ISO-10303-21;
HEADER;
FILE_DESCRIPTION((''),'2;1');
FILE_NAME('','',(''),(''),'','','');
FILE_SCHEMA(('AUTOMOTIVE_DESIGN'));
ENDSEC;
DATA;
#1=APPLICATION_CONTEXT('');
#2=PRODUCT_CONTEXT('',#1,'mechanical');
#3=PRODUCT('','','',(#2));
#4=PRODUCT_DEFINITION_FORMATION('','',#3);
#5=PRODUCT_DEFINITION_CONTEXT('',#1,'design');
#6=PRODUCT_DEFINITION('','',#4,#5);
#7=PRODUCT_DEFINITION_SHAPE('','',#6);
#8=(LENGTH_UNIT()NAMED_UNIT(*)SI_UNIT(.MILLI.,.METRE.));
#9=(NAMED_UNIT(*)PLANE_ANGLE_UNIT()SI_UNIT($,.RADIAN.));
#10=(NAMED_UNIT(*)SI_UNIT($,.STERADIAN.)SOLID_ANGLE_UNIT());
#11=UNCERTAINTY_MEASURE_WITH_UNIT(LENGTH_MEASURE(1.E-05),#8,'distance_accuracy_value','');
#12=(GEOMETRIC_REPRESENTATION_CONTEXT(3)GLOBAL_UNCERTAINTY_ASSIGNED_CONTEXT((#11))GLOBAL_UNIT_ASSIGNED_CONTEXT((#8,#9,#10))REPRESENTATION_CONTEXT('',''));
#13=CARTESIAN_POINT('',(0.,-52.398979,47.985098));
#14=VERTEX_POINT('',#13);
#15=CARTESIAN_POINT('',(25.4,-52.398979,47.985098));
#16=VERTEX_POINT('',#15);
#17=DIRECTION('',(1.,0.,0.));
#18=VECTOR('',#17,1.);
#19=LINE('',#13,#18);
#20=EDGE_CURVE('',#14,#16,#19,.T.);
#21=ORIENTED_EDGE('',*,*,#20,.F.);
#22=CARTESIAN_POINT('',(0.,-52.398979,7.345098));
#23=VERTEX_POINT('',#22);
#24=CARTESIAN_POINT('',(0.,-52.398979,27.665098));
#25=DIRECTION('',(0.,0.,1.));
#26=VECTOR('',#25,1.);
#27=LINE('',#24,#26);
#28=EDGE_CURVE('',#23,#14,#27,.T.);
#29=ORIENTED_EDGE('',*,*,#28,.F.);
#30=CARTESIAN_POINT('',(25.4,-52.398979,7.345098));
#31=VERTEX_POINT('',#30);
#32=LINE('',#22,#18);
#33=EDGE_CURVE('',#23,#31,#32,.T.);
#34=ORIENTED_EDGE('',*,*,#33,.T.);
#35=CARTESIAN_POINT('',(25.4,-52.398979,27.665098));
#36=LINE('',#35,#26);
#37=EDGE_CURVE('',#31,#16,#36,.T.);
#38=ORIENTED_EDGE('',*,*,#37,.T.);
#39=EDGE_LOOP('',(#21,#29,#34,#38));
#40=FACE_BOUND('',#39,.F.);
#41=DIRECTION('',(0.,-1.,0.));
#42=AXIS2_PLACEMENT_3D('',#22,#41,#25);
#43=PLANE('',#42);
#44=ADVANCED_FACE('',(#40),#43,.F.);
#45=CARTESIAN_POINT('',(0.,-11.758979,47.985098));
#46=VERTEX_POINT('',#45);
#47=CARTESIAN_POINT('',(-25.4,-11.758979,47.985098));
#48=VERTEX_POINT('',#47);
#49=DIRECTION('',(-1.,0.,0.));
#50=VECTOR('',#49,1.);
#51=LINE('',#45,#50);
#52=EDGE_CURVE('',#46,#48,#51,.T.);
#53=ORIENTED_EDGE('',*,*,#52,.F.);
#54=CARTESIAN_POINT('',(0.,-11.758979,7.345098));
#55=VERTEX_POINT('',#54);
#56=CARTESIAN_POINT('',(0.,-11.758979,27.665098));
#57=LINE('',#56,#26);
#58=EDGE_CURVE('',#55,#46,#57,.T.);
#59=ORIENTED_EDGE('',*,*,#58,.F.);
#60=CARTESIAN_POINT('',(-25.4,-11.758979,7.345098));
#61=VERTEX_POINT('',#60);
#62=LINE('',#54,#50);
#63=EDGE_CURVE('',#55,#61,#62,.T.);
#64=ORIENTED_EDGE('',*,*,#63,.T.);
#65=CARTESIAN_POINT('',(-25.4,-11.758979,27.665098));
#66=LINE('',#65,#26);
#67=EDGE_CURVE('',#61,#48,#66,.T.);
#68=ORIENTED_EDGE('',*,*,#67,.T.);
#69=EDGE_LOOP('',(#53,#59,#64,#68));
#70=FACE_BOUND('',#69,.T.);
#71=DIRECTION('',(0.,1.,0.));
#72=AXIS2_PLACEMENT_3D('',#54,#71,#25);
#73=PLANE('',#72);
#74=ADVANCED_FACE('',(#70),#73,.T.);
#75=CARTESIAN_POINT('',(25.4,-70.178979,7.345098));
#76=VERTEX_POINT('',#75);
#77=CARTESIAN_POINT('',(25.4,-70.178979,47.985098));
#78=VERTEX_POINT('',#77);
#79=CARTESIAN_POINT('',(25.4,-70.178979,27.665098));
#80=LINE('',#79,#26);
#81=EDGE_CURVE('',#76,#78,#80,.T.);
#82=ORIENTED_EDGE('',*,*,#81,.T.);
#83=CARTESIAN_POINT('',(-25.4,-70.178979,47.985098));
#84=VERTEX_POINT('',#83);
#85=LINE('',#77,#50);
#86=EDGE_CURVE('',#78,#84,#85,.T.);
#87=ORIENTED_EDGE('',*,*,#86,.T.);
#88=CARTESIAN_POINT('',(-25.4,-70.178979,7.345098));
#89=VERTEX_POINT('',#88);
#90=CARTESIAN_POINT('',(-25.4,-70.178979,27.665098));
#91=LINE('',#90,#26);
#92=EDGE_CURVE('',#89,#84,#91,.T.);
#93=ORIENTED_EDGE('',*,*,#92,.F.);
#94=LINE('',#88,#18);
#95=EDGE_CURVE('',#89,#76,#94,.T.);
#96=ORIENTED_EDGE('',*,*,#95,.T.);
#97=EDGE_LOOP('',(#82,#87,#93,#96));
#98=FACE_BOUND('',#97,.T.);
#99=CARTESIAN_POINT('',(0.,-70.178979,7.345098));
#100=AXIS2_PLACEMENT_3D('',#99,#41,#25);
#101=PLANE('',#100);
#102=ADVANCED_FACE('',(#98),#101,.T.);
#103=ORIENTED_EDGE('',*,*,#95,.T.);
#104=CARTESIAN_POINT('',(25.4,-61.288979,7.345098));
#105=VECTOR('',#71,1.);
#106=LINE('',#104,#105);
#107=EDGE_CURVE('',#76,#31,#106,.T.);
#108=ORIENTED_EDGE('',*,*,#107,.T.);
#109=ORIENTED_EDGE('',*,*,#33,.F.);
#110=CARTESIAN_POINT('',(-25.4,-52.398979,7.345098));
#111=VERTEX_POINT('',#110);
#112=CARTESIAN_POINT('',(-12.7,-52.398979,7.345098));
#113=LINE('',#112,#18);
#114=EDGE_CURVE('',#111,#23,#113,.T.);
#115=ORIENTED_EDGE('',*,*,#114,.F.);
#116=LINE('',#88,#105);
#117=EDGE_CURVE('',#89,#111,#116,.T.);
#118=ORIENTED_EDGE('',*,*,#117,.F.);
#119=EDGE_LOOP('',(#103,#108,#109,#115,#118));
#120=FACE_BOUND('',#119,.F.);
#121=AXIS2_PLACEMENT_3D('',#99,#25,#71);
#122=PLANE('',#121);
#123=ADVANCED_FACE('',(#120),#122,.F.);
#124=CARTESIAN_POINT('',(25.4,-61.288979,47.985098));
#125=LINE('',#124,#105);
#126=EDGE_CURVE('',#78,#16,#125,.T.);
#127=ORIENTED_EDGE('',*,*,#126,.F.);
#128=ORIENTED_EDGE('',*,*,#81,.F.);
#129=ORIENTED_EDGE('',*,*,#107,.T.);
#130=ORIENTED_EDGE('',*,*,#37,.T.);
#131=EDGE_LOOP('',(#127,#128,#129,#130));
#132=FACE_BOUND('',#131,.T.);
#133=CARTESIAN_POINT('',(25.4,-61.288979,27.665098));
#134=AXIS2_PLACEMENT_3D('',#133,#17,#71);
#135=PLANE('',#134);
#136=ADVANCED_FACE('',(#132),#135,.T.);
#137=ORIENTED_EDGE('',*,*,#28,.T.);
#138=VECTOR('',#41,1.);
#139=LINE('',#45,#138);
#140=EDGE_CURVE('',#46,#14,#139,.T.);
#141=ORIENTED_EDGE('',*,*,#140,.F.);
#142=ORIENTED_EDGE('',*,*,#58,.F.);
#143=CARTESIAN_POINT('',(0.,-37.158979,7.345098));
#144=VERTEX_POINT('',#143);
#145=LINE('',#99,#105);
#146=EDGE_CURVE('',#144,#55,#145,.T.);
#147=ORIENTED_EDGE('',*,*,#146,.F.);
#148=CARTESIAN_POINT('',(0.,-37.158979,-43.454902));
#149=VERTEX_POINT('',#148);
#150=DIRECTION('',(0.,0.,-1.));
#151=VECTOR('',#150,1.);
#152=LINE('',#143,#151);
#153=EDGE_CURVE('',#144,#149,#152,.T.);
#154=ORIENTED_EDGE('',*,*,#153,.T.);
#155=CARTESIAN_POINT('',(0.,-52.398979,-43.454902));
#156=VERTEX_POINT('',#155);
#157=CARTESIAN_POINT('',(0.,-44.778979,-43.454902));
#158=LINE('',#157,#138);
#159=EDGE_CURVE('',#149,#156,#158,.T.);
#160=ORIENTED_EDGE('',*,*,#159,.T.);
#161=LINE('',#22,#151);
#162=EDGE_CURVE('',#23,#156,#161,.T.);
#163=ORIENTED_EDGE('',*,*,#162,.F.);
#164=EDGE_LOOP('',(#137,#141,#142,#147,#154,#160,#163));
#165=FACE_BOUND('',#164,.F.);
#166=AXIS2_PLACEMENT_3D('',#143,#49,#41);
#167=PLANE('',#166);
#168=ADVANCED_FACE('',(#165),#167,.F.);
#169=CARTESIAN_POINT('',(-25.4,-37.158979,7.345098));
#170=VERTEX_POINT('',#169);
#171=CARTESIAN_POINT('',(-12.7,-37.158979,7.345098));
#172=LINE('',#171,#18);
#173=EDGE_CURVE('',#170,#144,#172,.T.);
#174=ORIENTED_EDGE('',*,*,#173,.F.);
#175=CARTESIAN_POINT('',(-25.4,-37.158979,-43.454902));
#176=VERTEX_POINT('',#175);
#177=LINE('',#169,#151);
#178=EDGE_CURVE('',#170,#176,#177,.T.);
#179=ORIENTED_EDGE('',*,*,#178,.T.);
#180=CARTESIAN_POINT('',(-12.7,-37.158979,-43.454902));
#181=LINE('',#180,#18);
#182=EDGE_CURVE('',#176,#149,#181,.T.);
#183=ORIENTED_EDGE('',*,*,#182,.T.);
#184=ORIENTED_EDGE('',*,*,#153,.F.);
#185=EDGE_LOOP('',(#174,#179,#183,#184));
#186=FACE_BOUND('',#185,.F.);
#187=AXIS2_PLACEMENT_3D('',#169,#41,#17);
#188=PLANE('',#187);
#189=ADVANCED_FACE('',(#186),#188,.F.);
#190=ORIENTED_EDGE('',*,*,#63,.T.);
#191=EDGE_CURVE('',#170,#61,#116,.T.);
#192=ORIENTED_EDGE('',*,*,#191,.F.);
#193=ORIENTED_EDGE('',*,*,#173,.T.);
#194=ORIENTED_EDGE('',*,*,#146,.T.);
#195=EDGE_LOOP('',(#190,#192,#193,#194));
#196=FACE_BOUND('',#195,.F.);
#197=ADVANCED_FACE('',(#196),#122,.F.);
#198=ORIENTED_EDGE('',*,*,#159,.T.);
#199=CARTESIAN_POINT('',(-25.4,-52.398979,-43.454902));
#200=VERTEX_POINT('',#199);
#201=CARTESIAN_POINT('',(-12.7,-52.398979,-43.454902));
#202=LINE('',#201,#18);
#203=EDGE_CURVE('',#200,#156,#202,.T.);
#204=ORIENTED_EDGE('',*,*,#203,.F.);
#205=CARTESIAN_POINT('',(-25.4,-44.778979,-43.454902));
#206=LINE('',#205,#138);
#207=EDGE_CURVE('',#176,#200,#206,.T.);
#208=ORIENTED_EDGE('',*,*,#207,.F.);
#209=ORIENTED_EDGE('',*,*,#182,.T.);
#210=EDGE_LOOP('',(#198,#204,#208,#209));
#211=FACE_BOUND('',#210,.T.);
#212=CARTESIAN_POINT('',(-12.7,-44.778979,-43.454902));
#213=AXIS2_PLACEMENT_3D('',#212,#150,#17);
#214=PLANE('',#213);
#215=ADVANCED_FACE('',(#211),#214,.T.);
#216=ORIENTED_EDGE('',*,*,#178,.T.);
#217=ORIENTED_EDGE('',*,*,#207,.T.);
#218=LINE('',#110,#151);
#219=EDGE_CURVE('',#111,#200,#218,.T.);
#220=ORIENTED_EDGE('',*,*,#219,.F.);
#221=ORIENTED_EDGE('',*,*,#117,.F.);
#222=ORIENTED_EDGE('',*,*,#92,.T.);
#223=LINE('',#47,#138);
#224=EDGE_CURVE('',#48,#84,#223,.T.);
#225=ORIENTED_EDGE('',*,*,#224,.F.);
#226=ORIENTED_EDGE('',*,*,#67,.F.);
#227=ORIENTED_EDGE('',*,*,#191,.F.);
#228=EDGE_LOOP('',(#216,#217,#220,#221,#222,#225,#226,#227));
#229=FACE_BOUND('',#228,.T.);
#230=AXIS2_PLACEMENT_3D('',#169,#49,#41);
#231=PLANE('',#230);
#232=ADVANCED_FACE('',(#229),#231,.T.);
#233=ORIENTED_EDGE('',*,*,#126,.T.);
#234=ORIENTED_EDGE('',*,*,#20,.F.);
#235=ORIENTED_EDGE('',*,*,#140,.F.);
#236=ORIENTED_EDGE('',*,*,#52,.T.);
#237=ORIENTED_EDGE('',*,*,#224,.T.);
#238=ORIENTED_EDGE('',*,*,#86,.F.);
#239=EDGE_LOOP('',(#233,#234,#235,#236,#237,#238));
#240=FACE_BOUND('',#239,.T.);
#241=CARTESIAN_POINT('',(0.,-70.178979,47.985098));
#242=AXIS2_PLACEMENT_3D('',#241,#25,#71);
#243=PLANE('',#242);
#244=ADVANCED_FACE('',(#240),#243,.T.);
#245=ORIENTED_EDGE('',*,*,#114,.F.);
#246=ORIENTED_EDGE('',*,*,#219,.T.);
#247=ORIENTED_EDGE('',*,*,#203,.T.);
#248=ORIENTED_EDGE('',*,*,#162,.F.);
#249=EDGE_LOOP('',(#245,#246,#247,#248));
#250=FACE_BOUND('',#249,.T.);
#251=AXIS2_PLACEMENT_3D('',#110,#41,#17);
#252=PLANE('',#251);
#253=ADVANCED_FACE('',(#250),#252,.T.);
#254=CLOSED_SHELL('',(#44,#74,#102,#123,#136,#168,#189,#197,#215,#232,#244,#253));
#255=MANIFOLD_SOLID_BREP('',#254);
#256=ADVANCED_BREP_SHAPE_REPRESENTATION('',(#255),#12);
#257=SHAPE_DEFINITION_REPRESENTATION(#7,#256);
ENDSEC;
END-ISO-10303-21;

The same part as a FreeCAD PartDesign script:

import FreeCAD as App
import Part
import Sketcher
Q = App.Units.Quantity


def add_polygon(sketch, points):
    """Adds a closed chain of lines whose ends are joined by coincident constraints."""
    first, n = sketch.GeometryCount, len(points)
    for a, b in zip(points, points[1:] + points[:1]):
        sketch.addGeometry(Part.LineSegment(App.Vector(*a, 0), App.Vector(*b, 0)), False)
    for i in range(n):
        sketch.addConstraint(Sketcher.Constraint("Coincident", first + i, 2, first + (i + 1) % n, 1))

doc = App.newDocument("Part")
params = doc.addObject("Spreadsheet::Sheet", "Params")
for row, (alias, value) in enumerate([
    ("sketch1_width", "2.3 in"),
    ("sketch1_height", "1.6 in"),
    ("pad1_length", "1 in"),
    ("sketch2_width", "0.7 in"),
    ("sketch2_height", "1.6 in"),
    ("pad2_length", "1 in"),
    ("sketch3_width", "1 in"),
    ("sketch3_height", "0.6 in"),
    ("pad3_length", "2 in"),
], start=1):
    params.set(f"A{row}", alias)
    params.set(f"B{row}", "=" + value)
    params.setAlias(f"B{row}", alias)

body = doc.addObject("PartDesign::Body", "Body")

# Sketch on YZ plane
sketch1 = body.newObject("Sketcher::SketchObject", "Sketch")
sketch1.AttachmentSupport = (doc.getObject("YZ_Plane"), [""])
sketch1.MapMode = "FlatFace"
add_polygon(sketch1, [(-12, 7), (-12, 48), (-70, 48), (-70, 7)])  # lines 0-3
sketch1.addConstraint(Sketcher.Constraint("Vertical", 0))
sketch1.addConstraint(Sketcher.Constraint("Horizontal", 1))
sketch1.addConstraint(Sketcher.Constraint("Vertical", 2))
sketch1.addConstraint(Sketcher.Constraint("Horizontal", 3))
sketch1.addConstraint(Sketcher.Constraint("DistanceX", 1, 2, 1, 1, Q("2.3 in")))
sketch1.addConstraint(Sketcher.Constraint("DistanceY", 0, 1, 0, 2, Q("1.6 in")))
sketch1.addConstraint(Sketcher.Constraint("DistanceX", 0, 2, -1, 1, 11.758979))
sketch1.addConstraint(Sketcher.Constraint("DistanceY", -1, 1, 0, 2, 47.985098))
sketch1.setExpression("Constraints[8]", "Params.sketch1_width")
sketch1.setExpression("Constraints[9]", "Params.sketch1_height")
pad1 = body.newObject("PartDesign::Pad", "Pad")
pad1.Profile = sketch1
pad1.setExpression("Length", "Params.pad1_length")
pad1.Reversed = True

# Sketch on YZ plane
sketch2 = body.newObject("Sketcher::SketchObject", "Sketch001")
sketch2.AttachmentSupport = (doc.getObject("YZ_Plane"), [""])
sketch2.MapMode = "FlatFace"
add_polygon(sketch2, [(-70, 48), (-70, 7), (-52, 7), (-52, 48)])  # lines 0-3
sketch2.addConstraint(Sketcher.Constraint("Vertical", 0))
sketch2.addConstraint(Sketcher.Constraint("Horizontal", 1))
sketch2.addConstraint(Sketcher.Constraint("Vertical", 2))
sketch2.addConstraint(Sketcher.Constraint("Horizontal", 3))
sketch2.addConstraint(Sketcher.Constraint("DistanceX", 1, 1, 1, 2, Q("0.7 in")))
sketch2.addConstraint(Sketcher.Constraint("DistanceY", 0, 2, 0, 1, Q("1.6 in")))
sketch2.addConstraint(Sketcher.Constraint("DistanceX", 0, 2, -1, 1, 70.178979))
sketch2.addConstraint(Sketcher.Constraint("DistanceY", -1, 1, 0, 2, 7.345098))
sketch2.setExpression("Constraints[8]", "Params.sketch2_width")
sketch2.setExpression("Constraints[9]", "Params.sketch2_height")
pad2 = body.newObject("PartDesign::Pad", "Pad001")
pad2.Profile = sketch2
pad2.setExpression("Length", "Params.pad2_length")

# Sketch on XY plane
sketch3 = body.newObject("Sketcher::SketchObject", "Sketch002")
sketch3.AttachmentSupport = (doc.getObject("XY_Plane"), [""])
sketch3.MapMode = "FlatFace"
sketch3.AttachmentOffset = App.Placement(App.Vector(0, 0, 7.345098), App.Rotation())
add_polygon(sketch3, [(-25, -52), (-25, -37), (0, -37), (0, -52)])  # lines 0-3
sketch3.addConstraint(Sketcher.Constraint("Vertical", 0))
sketch3.addConstraint(Sketcher.Constraint("Horizontal", 1))
sketch3.addConstraint(Sketcher.Constraint("Vertical", 2))
sketch3.addConstraint(Sketcher.Constraint("Horizontal", 3))
sketch3.addConstraint(Sketcher.Constraint("PointOnObject", 1, 2, -2))
sketch3.addConstraint(Sketcher.Constraint("DistanceX", 1, 1, 1, 2, Q("1 in")))
sketch3.addConstraint(Sketcher.Constraint("DistanceY", 0, 1, 0, 2, Q("0.6 in")))
sketch3.addConstraint(Sketcher.Constraint("DistanceY", 0, 2, -1, 1, 37.158979))
sketch3.setExpression("Constraints[9]", "Params.sketch3_width")
sketch3.setExpression("Constraints[10]", "Params.sketch3_height")
pad3 = body.newObject("PartDesign::Pad", "Pad002")
pad3.Profile = sketch3
pad3.setExpression("Length", "Params.pad3_length")
pad3.Reversed = True

doc.recompute()
